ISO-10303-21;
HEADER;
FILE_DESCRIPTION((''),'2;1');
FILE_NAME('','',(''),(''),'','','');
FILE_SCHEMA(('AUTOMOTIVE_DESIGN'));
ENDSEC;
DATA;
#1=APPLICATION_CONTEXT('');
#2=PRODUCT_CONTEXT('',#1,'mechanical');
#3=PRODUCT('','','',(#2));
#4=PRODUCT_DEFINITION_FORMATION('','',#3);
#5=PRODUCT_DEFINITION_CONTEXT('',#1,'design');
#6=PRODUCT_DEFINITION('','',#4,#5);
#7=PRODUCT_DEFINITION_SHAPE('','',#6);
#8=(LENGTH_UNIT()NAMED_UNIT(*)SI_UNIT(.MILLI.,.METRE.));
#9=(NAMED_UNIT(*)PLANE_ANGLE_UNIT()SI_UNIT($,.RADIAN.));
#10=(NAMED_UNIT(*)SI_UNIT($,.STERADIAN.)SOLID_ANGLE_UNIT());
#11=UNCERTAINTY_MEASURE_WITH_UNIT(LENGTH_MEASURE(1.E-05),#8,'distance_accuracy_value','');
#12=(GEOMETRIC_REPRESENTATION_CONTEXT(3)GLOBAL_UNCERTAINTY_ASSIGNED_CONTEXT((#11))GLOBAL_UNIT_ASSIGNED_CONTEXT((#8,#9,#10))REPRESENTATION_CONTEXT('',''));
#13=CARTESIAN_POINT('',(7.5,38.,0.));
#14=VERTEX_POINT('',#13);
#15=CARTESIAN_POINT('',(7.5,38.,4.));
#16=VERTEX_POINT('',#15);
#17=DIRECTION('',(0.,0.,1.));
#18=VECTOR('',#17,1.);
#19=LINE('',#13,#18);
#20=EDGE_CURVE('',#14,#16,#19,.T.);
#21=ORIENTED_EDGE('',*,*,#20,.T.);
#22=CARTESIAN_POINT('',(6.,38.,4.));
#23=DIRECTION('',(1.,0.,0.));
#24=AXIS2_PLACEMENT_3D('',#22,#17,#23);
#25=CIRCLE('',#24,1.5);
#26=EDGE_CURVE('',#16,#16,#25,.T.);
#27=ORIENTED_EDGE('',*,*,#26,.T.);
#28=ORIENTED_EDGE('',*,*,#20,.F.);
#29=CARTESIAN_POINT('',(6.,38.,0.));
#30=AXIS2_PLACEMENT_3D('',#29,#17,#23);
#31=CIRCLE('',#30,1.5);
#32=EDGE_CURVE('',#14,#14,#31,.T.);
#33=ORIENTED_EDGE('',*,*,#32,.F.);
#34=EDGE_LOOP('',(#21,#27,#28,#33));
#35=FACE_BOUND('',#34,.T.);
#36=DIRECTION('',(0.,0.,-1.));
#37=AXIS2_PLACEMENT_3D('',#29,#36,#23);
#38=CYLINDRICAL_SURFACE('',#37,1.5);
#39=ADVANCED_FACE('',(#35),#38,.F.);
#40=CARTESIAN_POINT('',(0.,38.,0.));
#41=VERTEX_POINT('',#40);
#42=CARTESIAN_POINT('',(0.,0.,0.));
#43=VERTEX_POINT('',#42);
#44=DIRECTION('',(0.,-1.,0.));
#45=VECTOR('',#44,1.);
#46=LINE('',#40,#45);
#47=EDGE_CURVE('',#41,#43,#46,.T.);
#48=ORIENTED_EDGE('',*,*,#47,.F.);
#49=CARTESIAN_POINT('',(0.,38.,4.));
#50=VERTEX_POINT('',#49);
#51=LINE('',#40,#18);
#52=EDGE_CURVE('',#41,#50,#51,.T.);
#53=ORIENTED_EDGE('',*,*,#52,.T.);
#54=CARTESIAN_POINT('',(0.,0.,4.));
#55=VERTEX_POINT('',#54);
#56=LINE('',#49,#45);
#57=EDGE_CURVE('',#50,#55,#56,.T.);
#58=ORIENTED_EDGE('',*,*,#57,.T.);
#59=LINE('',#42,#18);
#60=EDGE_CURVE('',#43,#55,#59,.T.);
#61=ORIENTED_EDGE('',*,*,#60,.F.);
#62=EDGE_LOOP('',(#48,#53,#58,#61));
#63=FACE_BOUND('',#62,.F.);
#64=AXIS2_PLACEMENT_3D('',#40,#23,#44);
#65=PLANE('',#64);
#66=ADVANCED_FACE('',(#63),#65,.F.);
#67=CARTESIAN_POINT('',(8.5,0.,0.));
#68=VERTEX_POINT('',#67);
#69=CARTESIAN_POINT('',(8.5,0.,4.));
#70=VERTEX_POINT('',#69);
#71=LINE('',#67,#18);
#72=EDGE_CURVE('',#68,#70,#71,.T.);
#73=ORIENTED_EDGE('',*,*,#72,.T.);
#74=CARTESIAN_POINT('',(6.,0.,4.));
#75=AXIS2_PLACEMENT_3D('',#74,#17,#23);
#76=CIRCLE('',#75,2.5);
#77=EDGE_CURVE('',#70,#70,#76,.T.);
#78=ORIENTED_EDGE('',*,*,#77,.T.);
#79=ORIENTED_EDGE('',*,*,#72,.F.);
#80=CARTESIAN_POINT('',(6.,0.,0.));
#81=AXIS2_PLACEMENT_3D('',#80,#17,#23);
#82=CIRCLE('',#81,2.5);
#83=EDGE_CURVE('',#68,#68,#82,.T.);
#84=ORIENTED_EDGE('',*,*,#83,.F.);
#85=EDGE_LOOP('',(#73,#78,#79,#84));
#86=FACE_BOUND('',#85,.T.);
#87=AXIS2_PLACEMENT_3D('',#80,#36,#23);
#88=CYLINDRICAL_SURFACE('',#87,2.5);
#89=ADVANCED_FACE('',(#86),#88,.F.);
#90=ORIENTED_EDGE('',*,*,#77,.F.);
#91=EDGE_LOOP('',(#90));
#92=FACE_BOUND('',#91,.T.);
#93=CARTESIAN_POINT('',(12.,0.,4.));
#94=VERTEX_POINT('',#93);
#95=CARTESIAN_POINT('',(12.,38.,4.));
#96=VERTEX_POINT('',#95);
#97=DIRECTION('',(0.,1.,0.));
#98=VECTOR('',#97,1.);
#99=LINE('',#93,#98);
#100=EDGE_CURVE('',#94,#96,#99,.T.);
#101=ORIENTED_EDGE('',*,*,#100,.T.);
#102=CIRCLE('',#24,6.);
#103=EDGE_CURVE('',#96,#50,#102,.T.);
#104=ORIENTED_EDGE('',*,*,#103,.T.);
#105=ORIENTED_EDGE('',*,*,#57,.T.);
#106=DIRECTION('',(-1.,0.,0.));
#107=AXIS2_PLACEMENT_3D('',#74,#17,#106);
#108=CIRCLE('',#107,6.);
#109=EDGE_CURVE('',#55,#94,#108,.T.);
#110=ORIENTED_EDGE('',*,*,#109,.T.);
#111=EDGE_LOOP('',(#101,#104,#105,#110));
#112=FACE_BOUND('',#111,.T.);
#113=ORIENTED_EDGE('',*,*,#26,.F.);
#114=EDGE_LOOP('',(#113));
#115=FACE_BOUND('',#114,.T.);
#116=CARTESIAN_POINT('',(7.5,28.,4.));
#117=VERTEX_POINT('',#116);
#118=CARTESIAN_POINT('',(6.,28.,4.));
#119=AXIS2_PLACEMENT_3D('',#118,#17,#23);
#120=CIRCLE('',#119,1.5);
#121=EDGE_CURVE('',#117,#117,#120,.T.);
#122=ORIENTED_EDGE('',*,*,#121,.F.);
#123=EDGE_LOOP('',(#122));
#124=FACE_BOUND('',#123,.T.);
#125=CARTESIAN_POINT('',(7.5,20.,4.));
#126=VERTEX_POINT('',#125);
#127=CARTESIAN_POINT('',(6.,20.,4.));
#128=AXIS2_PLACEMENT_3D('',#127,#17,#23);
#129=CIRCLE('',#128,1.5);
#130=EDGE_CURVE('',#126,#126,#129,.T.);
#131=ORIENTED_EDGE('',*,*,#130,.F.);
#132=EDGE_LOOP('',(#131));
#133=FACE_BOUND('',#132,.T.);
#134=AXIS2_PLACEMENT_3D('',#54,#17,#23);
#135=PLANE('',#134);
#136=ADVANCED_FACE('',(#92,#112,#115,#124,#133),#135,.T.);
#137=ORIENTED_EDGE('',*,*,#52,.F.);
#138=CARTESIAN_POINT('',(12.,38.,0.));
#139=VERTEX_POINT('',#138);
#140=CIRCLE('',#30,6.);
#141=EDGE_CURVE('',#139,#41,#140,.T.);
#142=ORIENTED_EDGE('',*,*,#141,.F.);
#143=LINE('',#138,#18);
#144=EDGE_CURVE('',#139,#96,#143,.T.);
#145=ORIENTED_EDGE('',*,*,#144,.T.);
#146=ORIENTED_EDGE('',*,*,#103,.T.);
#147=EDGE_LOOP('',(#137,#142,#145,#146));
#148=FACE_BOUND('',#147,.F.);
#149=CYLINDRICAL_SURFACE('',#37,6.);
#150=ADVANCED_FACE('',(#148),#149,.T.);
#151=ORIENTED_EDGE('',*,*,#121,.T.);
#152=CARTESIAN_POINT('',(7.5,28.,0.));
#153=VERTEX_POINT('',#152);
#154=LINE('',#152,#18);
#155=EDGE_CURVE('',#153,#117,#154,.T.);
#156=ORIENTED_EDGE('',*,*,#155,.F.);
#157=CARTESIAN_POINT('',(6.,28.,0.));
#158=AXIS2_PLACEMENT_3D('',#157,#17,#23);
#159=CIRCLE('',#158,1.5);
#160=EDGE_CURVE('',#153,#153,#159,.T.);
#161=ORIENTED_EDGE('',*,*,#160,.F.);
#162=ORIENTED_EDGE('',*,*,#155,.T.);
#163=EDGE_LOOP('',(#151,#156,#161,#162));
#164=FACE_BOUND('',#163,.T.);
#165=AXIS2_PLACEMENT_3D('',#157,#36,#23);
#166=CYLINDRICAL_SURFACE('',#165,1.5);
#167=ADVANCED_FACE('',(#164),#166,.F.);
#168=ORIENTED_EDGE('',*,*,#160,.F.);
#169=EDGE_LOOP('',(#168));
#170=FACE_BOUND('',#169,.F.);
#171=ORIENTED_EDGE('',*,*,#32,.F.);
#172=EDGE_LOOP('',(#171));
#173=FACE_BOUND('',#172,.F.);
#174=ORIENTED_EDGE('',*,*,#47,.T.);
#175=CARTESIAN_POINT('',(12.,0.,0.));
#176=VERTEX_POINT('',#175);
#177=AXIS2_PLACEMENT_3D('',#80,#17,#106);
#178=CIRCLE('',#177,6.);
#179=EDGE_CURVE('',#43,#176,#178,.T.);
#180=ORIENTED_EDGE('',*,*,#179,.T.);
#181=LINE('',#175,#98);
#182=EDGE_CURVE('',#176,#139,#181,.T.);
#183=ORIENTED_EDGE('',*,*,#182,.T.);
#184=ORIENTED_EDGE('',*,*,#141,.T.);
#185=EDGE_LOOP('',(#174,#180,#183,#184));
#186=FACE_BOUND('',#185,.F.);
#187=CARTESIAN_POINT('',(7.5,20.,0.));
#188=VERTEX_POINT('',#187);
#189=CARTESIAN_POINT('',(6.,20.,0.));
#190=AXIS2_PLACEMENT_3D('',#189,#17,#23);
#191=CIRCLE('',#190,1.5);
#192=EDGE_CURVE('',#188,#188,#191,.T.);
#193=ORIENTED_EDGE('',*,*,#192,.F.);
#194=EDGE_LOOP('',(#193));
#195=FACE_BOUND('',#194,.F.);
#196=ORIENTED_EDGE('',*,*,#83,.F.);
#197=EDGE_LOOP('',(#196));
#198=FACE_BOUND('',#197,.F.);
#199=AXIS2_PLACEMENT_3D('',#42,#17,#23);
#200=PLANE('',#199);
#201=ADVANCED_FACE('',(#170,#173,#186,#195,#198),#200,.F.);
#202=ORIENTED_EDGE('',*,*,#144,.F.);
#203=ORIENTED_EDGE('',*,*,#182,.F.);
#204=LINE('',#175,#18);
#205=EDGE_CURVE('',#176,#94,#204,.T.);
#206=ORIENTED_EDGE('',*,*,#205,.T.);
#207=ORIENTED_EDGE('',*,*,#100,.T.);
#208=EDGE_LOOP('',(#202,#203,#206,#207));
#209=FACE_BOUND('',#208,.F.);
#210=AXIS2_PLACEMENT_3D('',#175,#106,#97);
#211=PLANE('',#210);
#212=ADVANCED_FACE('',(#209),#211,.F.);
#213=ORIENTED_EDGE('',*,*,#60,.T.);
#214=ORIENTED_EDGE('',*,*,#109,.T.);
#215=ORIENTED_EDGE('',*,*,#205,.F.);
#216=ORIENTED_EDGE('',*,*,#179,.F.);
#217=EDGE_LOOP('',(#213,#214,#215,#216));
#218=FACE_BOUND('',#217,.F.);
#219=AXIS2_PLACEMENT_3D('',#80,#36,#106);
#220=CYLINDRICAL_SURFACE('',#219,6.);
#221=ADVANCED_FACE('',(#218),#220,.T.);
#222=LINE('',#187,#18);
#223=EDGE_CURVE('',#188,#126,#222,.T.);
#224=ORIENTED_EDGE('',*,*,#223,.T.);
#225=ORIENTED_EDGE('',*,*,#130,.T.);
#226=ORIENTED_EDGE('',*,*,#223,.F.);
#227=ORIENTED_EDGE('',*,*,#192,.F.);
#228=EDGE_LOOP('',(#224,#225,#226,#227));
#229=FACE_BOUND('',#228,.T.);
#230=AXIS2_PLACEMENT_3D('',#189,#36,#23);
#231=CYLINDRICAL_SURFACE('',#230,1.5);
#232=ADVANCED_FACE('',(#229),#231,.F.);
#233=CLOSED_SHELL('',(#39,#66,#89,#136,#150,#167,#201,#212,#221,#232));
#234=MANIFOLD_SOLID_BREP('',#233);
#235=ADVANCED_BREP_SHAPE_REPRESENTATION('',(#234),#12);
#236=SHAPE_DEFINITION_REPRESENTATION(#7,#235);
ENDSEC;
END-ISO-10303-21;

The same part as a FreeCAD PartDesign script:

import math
import FreeCAD as App
import Part
import Sketcher
from FreeCAD import Vector

doc = App.newDocument("Part")
body = doc.addObject("PartDesign::Body", "Body")

# Sketch on XY plane
sketch1 = body.newObject("Sketcher::SketchObject", "Sketch")
sketch1.AttachmentSupport = (doc.getObject("XY_Plane"), [""])
sketch1.MapMode = "FlatFace"
sketch1.addGeometry([
    Part.ArcOfCircle(Part.Circle(Vector(6, 0, 0), Vector(0, 0, 1), 6), math.radians(180), math.radians(360)),  # 0
    Part.LineSegment(Vector(12, 0, 0), Vector(12, 38, 0)),  # 1
    Part.ArcOfCircle(Part.Circle(Vector(6, 38, 0), Vector(0, 0, 1), 6), math.radians(0), math.radians(180)),  # 2
    Part.LineSegment(Vector(0, 38, 0), Vector(0, 0, 0)),  # 3
    Part.Circle(Vector(6, 0, 0), Vector(0, 0, 1), 2.5),  # 4
    Part.Circle(Vector(6, 20, 0), Vector(0, 0, 1), 1.5),  # 5
    Part.Circle(Vector(6, 28, 0), Vector(0, 0, 1), 1.5),  # 6
    Part.Circle(Vector(6, 38, 0), Vector(0, 0, 1), 1.5),  # 7
], False)
sketch1.addConstraint([
    Sketcher.Constraint("Tangent", 0, 2, 1, 1),
    Sketcher.Constraint("Tangent", 1, 2, 2, 1),
    Sketcher.Constraint("Tangent", 2, 2, 3, 1),
    Sketcher.Constraint("Tangent", 3, 2, 0, 1),
    Sketcher.Constraint("Vertical", 1),
    Sketcher.Constraint("Vertical", 3),
    Sketcher.Constraint("Coincident", 3, 2, -1, 1),
    Sketcher.Constraint("Coincident", 4, 3, 0, 3),
    Sketcher.Constraint("Coincident", 7, 3, 2, 3),
    Sketcher.Constraint("Equal", 5, 6),
    Sketcher.Constraint("Equal", 6, 7),
    Sketcher.Constraint("Vertical", 4, 3, 5, 3),
    Sketcher.Constraint("Vertical", 5, 3, 6, 3),
    Sketcher.Constraint("Diameter", 4, 5.0),
    Sketcher.Constraint("Diameter", 5, 3.0),
    Sketcher.Constraint("Radius", 0, 6.0),
    Sketcher.Constraint("DistanceY", 1, 1, 1, 2, 38.0),
    Sketcher.Constraint("DistanceY", -1, 1, 5, 3, 20.0),
    Sketcher.Constraint("DistanceY", 6, 3, 2, 3, 10.0),
])
pad1 = body.newObject("PartDesign::Pad", "Pad")
pad1.Profile = sketch1
pad1.Length = 4

doc.recompute()
